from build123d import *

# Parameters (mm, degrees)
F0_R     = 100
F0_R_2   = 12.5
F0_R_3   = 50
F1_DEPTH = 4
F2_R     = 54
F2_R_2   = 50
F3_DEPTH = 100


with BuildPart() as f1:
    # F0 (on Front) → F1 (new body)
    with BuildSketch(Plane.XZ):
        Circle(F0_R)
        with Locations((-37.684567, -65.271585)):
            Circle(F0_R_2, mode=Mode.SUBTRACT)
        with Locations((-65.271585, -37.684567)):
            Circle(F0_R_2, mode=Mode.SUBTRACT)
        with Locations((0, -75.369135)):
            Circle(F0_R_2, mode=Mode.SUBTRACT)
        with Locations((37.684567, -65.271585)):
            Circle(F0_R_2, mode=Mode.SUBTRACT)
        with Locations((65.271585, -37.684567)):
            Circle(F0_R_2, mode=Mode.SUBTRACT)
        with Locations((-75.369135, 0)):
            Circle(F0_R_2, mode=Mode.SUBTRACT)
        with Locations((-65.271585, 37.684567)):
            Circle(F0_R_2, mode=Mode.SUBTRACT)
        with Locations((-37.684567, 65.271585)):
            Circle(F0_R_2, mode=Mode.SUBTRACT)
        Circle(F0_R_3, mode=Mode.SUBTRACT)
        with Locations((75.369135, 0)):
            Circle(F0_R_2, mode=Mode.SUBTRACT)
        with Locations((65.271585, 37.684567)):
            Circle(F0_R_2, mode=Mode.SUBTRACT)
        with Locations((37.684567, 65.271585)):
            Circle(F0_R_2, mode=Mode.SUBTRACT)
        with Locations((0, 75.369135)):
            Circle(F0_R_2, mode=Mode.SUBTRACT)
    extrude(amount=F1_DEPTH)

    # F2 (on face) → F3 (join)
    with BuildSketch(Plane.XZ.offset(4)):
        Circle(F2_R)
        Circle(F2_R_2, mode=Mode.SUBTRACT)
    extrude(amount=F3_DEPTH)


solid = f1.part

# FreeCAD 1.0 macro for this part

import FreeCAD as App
import Part
import Sketcher

doc = App.newDocument("Part")
body = doc.addObject("PartDesign::Body", "Body")

sketch1 = body.newObject("Sketcher::SketchObject", "Sketch")
sketch1.AttachmentSupport = (doc.getObject("XZ_Plane"), [""])
sketch1.MapMode = "FlatFace"
sketch1.addGeometry(Part.Circle(App.Vector(0, 0, 0), App.Vector(0, 0, 1), 100), False)
sketch1.addGeometry(Part.Circle(App.Vector(-37.684567, -65.271585, 0), App.Vector(0, 0, 1), 12.5), False)
sketch1.addGeometry(Part.Circle(App.Vector(-65.271585, -37.684567, 0), App.Vector(0, 0, 1), 12.5), False)
sketch1.addGeometry(Part.Circle(App.Vector(0, -75.369135, 0), App.Vector(0, 0, 1), 12.5), False)
sketch1.addGeometry(Part.Circle(App.Vector(37.684567, -65.271585, 0), App.Vector(0, 0, 1), 12.5), False)
sketch1.addGeometry(Part.Circle(App.Vector(65.271585, -37.684567, 0), App.Vector(0, 0, 1), 12.5), False)
sketch1.addGeometry(Part.Circle(App.Vector(-75.369135, 0, 0), App.Vector(0, 0, 1), 12.5), False)
sketch1.addGeometry(Part.Circle(App.Vector(-65.271585, 37.684567, 0), App.Vector(0, 0, 1), 12.5), False)
sketch1.addGeometry(Part.Circle(App.Vector(-37.684567, 65.271585, 0), App.Vector(0, 0, 1), 12.5), False)
sketch1.addGeometry(Part.Circle(App.Vector(0, 0, 0), App.Vector(0, 0, 1), 50), False)
sketch1.addGeometry(Part.Circle(App.Vector(75.369135, 0, 0), App.Vector(0, 0, 1), 12.5), False)
sketch1.addGeometry(Part.Circle(App.Vector(65.271585, 37.684567, 0), App.Vector(0, 0, 1), 12.5), False)
sketch1.addGeometry(Part.Circle(App.Vector(37.684567, 65.271585, 0), App.Vector(0, 0, 1), 12.5), False)
sketch1.addGeometry(Part.Circle(App.Vector(0, 75.369135, 0), App.Vector(0, 0, 1), 12.5), False)
sketch1.addConstraint(Sketcher.Constraint("Coincident", 0, 3, -1, 1))
sketch1.addConstraint(Sketcher.Constraint("Coincident", 9, 3, -1, 1))
sketch1.addConstraint(Sketcher.Constraint("Equal", 1, 2))
sketch1.addConstraint(Sketcher.Constraint("Equal", 2, 3))
sketch1.addConstraint(Sketcher.Constraint("Equal", 3, 4))
sketch1.addConstraint(Sketcher.Constraint("Equal", 4, 5))
sketch1.addConstraint(Sketcher.Constraint("Equal", 5, 6))
sketch1.addConstraint(Sketcher.Constraint("Equal", 6, 7))
sketch1.addConstraint(Sketcher.Constraint("Equal", 7, 8))
sketch1.addConstraint(Sketcher.Constraint("Equal", 8, 10))
sketch1.addConstraint(Sketcher.Constraint("Equal", 10, 11))
sketch1.addConstraint(Sketcher.Constraint("Equal", 11, 12))
sketch1.addConstraint(Sketcher.Constraint("Equal", 12, 13))
sketch1.addConstraint(Sketcher.Constraint("Symmetric", 5, 3, 7, 3, -1, 1))
sketch1.addConstraint(Sketcher.Constraint("Symmetric", 4, 3, 8, 3, -1, 1))
sketch1.addConstraint(Sketcher.Constraint("Symmetric", 6, 3, 10, 3, -1, 1))
sketch1.addConstraint(Sketcher.Constraint("Symmetric", 2, 3, 11, 3, -1, 1))
sketch1.addConstraint(Sketcher.Constraint("Symmetric", 1, 3, 12, 3, -1, 1))
sketch1.addConstraint(Sketcher.Constraint("Symmetric", 3, 3, 13, 3, -1, 1))
sketch1.addConstraint(Sketcher.Constraint("Symmetric", 1, 3, 4, 3, -2))
sketch1.addConstraint(Sketcher.Constraint("Symmetric", 2, 3, 5, 3, -2))
sketch1.addConstraint(Sketcher.Constraint("PointOnObject", 3, 3, -2))
sketch1.addConstraint(Sketcher.Constraint("PointOnObject", 6, 3, -1))
sketch1.addConstraint(Sketcher.Constraint("Diameter", 0, 200.0))
sketch1.addConstraint(Sketcher.Constraint("Diameter", 1, 25.0))
sketch1.addConstraint(Sketcher.Constraint("Diameter", 9, 100.0))
sketch1.addConstraint(Sketcher.Constraint("DistanceX", 6, 3, 4, 3, 113.053702))
sketch1.addConstraint(Sketcher.Constraint("DistanceY", 3, 3, 7, 3, 113.053702))
sketch1.addConstraint(Sketcher.Constraint("DistanceX", 2, 3, 1, 3, 27.587018))
sketch1.addConstraint(Sketcher.Constraint("DistanceY", 1, 3, 2, 3, 27.587018))
sketch1.addConstraint(Sketcher.Constraint("DistanceY", 3, 3, 1, 3, 10.09755))
sketch1.addConstraint(Sketcher.Constraint("DistanceX", 2, 3, 5, 3, 130.54317))
pad1 = body.newObject("PartDesign::Pad", "Pad")
pad1.Profile = sketch1
pad1.Length = 4

sketch2 = body.newObject("Sketcher::SketchObject", "Sketch001")
sketch2.AttachmentSupport = (doc.getObject("XZ_Plane"), [""])
sketch2.MapMode = "FlatFace"
sketch2.AttachmentOffset = App.Placement(App.Vector(0, 0, 4), App.Rotation())
sketch2.addGeometry(Part.Circle(App.Vector(0, 0, 0), App.Vector(0, 0, 1), 54), False)
sketch2.addGeometry(Part.Circle(App.Vector(0, 0, 0), App.Vector(0, 0, 1), 50), False)
sketch2.addConstraint(Sketcher.Constraint("Coincident", 0, 3, -1, 1))
sketch2.addConstraint(Sketcher.Constraint("Coincident", 1, 3, -1, 1))
sketch2.addConstraint(Sketcher.Constraint("Diameter", 0, 108.0))
sketch2.addConstraint(Sketcher.Constraint("Diameter", 1, 100.0))
pad2 = body.newObject("PartDesign::Pad", "Pad001")
pad2.Profile = sketch2
pad2.Length = 100

doc.recompute()
